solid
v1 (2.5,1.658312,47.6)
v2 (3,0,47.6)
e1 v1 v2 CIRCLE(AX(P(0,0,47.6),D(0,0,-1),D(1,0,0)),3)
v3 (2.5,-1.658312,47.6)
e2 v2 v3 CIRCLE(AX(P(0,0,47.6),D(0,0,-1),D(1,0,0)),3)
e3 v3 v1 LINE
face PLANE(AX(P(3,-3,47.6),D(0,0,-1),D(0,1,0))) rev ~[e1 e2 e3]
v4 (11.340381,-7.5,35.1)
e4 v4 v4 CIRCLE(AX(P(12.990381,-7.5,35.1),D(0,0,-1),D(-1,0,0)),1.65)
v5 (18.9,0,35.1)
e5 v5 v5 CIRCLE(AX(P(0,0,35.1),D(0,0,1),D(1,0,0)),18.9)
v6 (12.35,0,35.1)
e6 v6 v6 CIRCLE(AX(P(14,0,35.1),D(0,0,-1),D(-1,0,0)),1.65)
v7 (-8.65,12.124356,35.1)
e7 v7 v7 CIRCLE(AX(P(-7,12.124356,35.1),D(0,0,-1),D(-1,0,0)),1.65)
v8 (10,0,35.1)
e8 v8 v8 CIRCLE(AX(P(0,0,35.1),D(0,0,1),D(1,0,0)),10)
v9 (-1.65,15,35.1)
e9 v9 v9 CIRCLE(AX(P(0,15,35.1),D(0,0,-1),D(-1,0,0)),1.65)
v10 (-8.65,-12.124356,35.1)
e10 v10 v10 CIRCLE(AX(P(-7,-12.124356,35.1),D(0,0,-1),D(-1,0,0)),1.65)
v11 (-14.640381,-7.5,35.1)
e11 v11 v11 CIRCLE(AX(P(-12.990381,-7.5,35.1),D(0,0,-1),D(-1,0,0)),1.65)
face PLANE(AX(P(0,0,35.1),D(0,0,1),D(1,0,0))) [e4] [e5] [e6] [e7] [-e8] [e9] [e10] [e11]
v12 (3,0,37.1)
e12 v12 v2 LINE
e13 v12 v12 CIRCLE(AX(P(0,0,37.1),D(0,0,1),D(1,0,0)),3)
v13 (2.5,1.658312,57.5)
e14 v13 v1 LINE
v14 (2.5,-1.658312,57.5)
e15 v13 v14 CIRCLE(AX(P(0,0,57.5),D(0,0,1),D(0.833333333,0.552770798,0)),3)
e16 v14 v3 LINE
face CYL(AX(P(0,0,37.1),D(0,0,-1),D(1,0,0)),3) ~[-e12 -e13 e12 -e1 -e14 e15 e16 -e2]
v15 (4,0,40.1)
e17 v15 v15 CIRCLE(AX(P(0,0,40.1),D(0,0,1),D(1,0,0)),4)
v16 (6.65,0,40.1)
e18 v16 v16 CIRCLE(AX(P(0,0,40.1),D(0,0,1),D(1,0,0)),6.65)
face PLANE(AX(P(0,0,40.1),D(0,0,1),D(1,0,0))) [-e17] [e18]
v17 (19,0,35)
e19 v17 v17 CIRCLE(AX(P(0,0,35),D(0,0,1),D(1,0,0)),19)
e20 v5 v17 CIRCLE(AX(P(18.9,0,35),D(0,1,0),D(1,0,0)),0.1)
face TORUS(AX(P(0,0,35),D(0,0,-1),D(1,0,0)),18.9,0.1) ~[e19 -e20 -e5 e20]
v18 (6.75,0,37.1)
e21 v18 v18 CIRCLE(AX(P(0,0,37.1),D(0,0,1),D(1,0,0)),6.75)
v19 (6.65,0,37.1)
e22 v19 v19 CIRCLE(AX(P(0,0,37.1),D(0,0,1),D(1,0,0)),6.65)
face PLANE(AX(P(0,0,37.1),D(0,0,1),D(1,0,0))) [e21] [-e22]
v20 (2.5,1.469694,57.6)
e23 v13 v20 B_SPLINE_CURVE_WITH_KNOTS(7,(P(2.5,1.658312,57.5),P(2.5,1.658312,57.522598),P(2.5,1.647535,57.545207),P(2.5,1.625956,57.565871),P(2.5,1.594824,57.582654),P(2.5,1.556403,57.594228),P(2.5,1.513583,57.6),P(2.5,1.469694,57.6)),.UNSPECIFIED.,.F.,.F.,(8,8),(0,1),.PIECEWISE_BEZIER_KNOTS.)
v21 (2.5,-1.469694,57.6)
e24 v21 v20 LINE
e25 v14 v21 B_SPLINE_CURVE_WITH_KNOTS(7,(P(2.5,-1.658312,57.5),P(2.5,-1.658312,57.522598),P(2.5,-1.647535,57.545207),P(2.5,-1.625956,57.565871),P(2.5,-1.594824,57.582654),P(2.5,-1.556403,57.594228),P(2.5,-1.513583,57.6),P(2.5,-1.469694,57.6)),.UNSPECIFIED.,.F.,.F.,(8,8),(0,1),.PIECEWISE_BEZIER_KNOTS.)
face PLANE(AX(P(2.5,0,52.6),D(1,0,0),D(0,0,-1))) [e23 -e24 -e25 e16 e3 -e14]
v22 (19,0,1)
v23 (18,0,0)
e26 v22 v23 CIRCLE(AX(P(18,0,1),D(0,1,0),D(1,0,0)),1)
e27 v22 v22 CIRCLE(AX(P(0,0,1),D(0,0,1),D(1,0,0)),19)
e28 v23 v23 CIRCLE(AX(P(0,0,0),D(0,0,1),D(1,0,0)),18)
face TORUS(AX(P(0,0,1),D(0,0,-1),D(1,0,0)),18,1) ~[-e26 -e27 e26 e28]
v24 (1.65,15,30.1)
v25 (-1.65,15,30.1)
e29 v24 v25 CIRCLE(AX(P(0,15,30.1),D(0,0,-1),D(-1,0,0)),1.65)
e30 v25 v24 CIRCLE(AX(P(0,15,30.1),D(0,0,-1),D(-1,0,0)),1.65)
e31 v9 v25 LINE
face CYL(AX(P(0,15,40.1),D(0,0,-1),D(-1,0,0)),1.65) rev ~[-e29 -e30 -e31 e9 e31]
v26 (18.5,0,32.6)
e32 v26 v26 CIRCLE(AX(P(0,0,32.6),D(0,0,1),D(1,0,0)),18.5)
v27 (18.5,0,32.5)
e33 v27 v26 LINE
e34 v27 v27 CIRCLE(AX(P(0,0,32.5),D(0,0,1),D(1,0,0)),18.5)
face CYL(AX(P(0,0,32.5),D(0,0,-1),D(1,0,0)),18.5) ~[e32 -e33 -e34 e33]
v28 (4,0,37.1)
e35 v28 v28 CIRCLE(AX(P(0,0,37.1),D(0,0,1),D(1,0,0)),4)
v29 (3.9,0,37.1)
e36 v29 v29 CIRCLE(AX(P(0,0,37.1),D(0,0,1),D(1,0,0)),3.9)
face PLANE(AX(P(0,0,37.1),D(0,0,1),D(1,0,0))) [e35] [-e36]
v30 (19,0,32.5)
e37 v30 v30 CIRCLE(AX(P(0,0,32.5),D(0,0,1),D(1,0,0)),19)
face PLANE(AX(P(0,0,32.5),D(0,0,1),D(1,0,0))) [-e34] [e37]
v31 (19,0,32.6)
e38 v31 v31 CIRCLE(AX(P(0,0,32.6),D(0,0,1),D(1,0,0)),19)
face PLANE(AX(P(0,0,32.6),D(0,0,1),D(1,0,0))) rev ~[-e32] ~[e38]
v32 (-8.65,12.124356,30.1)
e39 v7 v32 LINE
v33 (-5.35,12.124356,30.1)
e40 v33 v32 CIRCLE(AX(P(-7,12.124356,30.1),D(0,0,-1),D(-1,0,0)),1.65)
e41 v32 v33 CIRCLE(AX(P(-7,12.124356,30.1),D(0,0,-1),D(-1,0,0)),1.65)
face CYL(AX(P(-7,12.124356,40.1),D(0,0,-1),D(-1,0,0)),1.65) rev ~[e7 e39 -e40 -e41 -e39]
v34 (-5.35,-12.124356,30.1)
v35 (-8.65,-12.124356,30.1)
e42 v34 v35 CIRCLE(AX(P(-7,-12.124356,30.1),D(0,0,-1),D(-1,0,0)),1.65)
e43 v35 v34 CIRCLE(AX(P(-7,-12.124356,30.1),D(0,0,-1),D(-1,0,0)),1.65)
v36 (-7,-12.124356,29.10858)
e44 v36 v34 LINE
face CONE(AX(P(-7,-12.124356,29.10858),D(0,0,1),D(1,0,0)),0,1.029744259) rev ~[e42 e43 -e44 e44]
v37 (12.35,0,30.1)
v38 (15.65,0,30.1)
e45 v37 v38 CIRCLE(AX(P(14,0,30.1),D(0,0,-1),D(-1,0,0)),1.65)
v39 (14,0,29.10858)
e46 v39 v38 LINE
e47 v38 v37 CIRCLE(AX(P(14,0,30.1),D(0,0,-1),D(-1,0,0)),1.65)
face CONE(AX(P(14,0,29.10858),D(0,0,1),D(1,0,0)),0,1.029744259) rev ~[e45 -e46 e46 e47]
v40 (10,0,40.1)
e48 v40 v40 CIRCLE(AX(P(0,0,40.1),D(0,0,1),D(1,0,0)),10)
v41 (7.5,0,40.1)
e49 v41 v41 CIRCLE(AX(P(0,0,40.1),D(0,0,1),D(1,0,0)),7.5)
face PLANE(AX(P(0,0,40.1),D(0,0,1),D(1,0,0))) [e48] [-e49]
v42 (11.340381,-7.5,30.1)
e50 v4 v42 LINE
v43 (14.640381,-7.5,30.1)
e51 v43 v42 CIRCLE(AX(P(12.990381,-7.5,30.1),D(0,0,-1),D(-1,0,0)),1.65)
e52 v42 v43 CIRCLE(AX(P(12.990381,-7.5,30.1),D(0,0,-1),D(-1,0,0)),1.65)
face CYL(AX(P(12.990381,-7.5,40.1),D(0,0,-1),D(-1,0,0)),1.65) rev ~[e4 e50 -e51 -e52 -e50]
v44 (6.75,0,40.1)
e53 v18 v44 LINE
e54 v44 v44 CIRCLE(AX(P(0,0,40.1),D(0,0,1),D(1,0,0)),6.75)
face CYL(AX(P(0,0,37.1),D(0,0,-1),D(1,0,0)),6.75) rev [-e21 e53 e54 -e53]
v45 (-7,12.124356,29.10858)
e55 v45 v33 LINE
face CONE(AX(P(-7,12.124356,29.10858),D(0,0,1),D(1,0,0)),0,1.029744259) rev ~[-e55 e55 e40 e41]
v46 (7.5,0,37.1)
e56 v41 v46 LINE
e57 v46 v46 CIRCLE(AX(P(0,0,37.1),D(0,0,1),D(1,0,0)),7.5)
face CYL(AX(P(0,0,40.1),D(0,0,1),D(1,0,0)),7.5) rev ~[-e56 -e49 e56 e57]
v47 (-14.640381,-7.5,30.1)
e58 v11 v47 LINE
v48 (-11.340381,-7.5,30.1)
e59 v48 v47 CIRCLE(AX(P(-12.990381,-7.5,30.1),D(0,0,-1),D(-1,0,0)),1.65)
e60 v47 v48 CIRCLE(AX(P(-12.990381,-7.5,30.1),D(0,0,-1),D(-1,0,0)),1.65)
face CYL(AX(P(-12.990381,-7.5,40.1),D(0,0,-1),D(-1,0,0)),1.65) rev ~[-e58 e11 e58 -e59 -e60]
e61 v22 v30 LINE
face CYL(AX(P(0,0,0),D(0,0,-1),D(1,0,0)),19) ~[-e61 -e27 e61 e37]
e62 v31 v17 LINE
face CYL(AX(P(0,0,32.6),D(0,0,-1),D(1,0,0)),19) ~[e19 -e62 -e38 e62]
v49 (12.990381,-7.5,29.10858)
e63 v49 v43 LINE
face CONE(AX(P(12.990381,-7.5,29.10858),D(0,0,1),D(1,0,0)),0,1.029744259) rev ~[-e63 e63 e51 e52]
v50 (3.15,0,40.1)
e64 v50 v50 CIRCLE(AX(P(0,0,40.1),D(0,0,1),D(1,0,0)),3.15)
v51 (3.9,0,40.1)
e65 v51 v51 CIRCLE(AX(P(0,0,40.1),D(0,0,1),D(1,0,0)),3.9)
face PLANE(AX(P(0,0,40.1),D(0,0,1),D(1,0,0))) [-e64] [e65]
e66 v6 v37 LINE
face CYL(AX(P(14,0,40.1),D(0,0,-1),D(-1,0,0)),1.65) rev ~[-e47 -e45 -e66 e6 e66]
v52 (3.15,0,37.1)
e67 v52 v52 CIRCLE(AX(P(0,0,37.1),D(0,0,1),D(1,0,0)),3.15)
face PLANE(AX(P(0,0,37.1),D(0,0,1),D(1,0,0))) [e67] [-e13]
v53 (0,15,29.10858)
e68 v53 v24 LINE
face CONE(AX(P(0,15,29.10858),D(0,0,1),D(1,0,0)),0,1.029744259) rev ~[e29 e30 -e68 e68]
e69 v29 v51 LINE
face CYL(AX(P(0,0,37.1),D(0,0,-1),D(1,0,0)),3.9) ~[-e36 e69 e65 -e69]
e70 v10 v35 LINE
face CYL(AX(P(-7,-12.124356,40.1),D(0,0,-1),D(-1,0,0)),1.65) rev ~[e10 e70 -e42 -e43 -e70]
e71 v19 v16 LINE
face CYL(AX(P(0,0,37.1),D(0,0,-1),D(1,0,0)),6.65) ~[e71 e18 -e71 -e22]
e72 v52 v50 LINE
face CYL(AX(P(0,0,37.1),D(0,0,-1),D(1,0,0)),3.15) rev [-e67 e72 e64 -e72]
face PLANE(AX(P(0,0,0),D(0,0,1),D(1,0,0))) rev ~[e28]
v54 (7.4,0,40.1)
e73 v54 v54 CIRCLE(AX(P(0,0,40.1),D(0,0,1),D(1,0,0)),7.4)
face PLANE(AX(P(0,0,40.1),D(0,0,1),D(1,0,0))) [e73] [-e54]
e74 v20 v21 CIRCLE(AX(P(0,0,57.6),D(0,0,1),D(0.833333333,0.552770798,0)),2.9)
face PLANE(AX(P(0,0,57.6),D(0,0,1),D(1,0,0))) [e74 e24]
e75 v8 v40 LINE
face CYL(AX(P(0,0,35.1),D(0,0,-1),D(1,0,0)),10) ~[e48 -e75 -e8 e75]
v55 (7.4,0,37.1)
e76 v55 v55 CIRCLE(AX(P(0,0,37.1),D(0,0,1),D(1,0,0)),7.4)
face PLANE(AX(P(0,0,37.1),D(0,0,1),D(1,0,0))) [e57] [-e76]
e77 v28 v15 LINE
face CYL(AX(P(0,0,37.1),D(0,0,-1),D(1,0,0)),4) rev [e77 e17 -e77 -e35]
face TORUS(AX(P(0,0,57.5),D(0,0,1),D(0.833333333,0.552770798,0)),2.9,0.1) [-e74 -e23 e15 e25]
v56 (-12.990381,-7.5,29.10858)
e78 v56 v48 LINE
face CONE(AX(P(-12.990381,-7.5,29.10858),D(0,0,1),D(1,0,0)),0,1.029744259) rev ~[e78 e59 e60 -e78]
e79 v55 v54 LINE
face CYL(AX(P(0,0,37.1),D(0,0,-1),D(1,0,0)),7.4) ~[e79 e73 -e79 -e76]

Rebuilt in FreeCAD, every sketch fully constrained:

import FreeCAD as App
import Part
import Sketcher

V = App.Vector


def edges_at(feature, points):
    """Names of the edges that pass closest to the given points."""
    edges = feature.Shape.Edges
    near = lambda p: min(range(len(edges)), key=lambda i: edges[i].distToShape(Part.Vertex(*p))[0])
    return sorted({f"Edge{near(p) + 1}" for p in points})

doc = App.newDocument("Part")
body = doc.addObject("PartDesign::Body", "Body")

# Sketch on XY plane
sketch1 = body.newObject("Sketcher::SketchObject", "Sketch")
sketch1.AttachmentSupport = (doc.getObject("XY_Plane"), [""])
sketch1.MapMode = "FlatFace"
sketch1.addGeometry(Part.Circle(V(0, 0, 0), V(0, 0, 1), 19), False)
sketch1.addConstraint([
    Sketcher.Constraint("Coincident", 0, 3, -1, 1),
    Sketcher.Constraint("Diameter", 0, 38.0),
])
pad1 = body.newObject("PartDesign::Pad", "Pad")
pad1.Profile = sketch1
pad1.Length = 32.5

# Sketch on XY plane
sketch2 = body.newObject("Sketcher::SketchObject", "Sketch001")
sketch2.AttachmentSupport = (doc.getObject("XY_Plane"), [""])
sketch2.MapMode = "FlatFace"
sketch2.AttachmentOffset = App.Placement(V(0, 0, 32.5), App.Rotation())
sketch2.addGeometry(Part.Circle(V(0, 0, 0), V(0, 0, 1), 18), False)
sketch2.addConstraint([
    Sketcher.Constraint("Coincident", 0, 3, -1, 1),
    Sketcher.Constraint("Diameter", 0, 37.0),
])
pad2 = body.newObject("PartDesign::Pad", "Pad001")
pad2.Profile = sketch2
pad2.Length = 0.1

# Sketch on XY plane
sketch3 = body.newObject("Sketcher::SketchObject", "Sketch002")
sketch3.AttachmentSupport = (doc.getObject("XY_Plane"), [""])
sketch3.MapMode = "FlatFace"
sketch3.AttachmentOffset = App.Placement(V(0, 0, 32.6), App.Rotation())
sketch3.addGeometry(Part.Circle(V(0, 0, 0), V(0, 0, 1), 19), False)
sketch3.addConstraint([
    Sketcher.Constraint("Coincident", 0, 3, -1, 1),
    Sketcher.Constraint("Diameter", 0, 38.0),
])
pad3 = body.newObject("PartDesign::Pad", "Pad002")
pad3.Profile = sketch3
pad3.Length = 2.5

# Sketch on XY plane
sketch4 = body.newObject("Sketcher::SketchObject", "Sketch003")
sketch4.AttachmentSupport = (doc.getObject("XY_Plane"), [""])
sketch4.MapMode = "FlatFace"
sketch4.AttachmentOffset = App.Placement(V(0, 0, 35.1), App.Rotation())
sketch4.addGeometry(Part.Circle(V(0, 0, 0), V(0, 0, 1), 10), False)
sketch4.addConstraint([
    Sketcher.Constraint("Coincident", 0, 3, -1, 1),
    Sketcher.Constraint("Diameter", 0, 20.0),
])
pad4 = body.newObject("PartDesign::Pad", "Pad003")
pad4.Profile = sketch4
pad4.Length = 5

# Sketch on XY plane
sketch5 = body.newObject("Sketcher::SketchObject", "Sketch004")
sketch5.AttachmentSupport = (doc.getObject("XY_Plane"), [""])
sketch5.MapMode = "FlatFace"
sketch5.AttachmentOffset = App.Placement(V(0, 0, 40.1), App.Rotation())
sketch5.addGeometry(Part.Circle(V(0, 0, 0), V(0, 0, 1), 8), False)
sketch5.addConstraint([
    Sketcher.Constraint("Coincident", 0, 3, -1, 1),
    Sketcher.Constraint("Diameter", 0, 15.0),
])
pocket1 = body.newObject("PartDesign::Pocket", "Pocket")
pocket1.Profile = sketch5
pocket1.Length = 3

# Sketch on XY plane
sketch6 = body.newObject("Sketcher::SketchObject", "Sketch005")
sketch6.AttachmentSupport = (doc.getObject("XY_Plane"), [""])
sketch6.MapMode = "FlatFace"
sketch6.AttachmentOffset = App.Placement(V(0, 0, 37.1), App.Rotation())
sketch6.addGeometry([
    Part.Circle(V(0, 0, 0), V(0, 0, 1), 7),
    Part.Circle(V(0, 0, 0), V(0, 0, 1), 7),
], False)
sketch6.addConstraint([
    Sketcher.Constraint("Coincident", 0, 3, -1, 1),
    Sketcher.Constraint("Coincident", 1, 3, -1, 1),
    Sketcher.Constraint("Diameter", 0, 14.8),
    Sketcher.Constraint("Diameter", 1, 13.5),
])
pad5 = body.newObject("PartDesign::Pad", "Pad004")
pad5.Profile = sketch6
pad5.Length = 3

# Sketch on XY plane
sketch7 = body.newObject("Sketcher::SketchObject", "Sketch006")
sketch7.AttachmentSupport = (doc.getObject("XY_Plane"), [""])
sketch7.MapMode = "FlatFace"
sketch7.AttachmentOffset = App.Placement(V(0, 0, 37.1), App.Rotation())
sketch7.addGeometry([
    Part.Circle(V(0, 0, 0), V(0, 0, 1), 6.7),
    Part.Circle(V(0, 0, 0), V(0, 0, 1), 4),
], False)
sketch7.addConstraint([
    Sketcher.Constraint("Coincident", 0, 3, -1, 1),
    Sketcher.Constraint("Coincident", 1, 3, -1, 1),
    Sketcher.Constraint("Diameter", 1, 8.0),
    Sketcher.Constraint("Diameter", 0, 13.3),
])
pad6 = body.newObject("PartDesign::Pad", "Pad005")
pad6.Profile = sketch7
pad6.Length = 3

# Sketch on XY plane
sketch8 = body.newObject("Sketcher::SketchObject", "Sketch007")
sketch8.AttachmentSupport = (doc.getObject("XY_Plane"), [""])
sketch8.MapMode = "FlatFace"
sketch8.AttachmentOffset = App.Placement(V(0, 0, 37.1), App.Rotation())
sketch8.addGeometry([
    Part.Circle(V(0, 0, 0), V(0, 0, 1), 3.9),
    Part.Circle(V(0, 0, 0), V(0, 0, 1), 3.1),
], False)
sketch8.addConstraint([
    Sketcher.Constraint("Coincident", 0, 3, -1, 1),
    Sketcher.Constraint("Coincident", 1, 3, -1, 1),
    Sketcher.Constraint("Diameter", 0, 7.8),
    Sketcher.Constraint("Diameter", 1, 6.3),
])
pad7 = body.newObject("PartDesign::Pad", "Pad006")
pad7.Profile = sketch8
pad7.Length = 3

# Sketch on XY plane
sketch9 = body.newObject("Sketcher::SketchObject", "Sketch008")
sketch9.AttachmentSupport = (doc.getObject("XY_Plane"), [""])
sketch9.MapMode = "FlatFace"
sketch9.AttachmentOffset = App.Placement(V(0, 0, 37.1), App.Rotation())
sketch9.addGeometry(Part.Circle(V(0, 0, 0), V(0, 0, 1), 3), False)
sketch9.addConstraint([
    Sketcher.Constraint("Coincident", 0, 3, -1, 1),
    Sketcher.Constraint("Diameter", 0, 6.0),
])
pad8 = body.newObject("PartDesign::Pad", "Pad007")
pad8.Profile = sketch9
pad8.Length = 20.5

# Sketch on YZ plane
sketch10 = body.newObject("Sketcher::SketchObject", "Sketch009")
sketch10.AttachmentSupport = (doc.getObject("YZ_Plane"), [""])
sketch10.MapMode = "FlatFace"
sketch10.AttachmentOffset = App.Placement(V(0, 0, 3), App.Rotation())
sketch10.addGeometry([
    Part.LineSegment(V(3, 58, 0), V(-3, 58, 0)),
    Part.LineSegment(V(-3, 58, 0), V(-3, 48, 0)),
    Part.LineSegment(V(-3, 48, 0), V(3, 48, 0)),
    Part.LineSegment(V(3, 48, 0), V(3, 58, 0)),
], False)
sketch10.addConstraint([
    Sketcher.Constraint("Coincident", 0, 2, 1, 1),
    Sketcher.Constraint("Coincident", 1, 2, 2, 1),
    Sketcher.Constraint("Coincident", 2, 2, 3, 1),
    Sketcher.Constraint("Coincident", 3, 2, 0, 1),
    Sketcher.Constraint("Horizontal", 0),
    Sketcher.Constraint("Vertical", 1),
    Sketcher.Constraint("Horizontal", 2),
    Sketcher.Constraint("Vertical", 3),
    Sketcher.Constraint("DistanceX", 0, 2, 0, 1, 6.0),
    Sketcher.Constraint("DistanceY", 1, 2, 1, 1, 10.0),
    Sketcher.Constraint("DistanceX", 0, 2, -1, 1, 3.0),
    Sketcher.Constraint("DistanceY", -1, 1, 0, 2, 57.6),
])
pocket2 = body.newObject("PartDesign::Pocket", "Pocket001")
pocket2.Profile = sketch10
pocket2.Length = 0.5
doc.recompute()

fillet = body.newObject("PartDesign::Fillet", "Fillet")
fillet.Base = (pocket2, edges_at(pocket2, [(-3, 0, 57.6)]))
fillet.Radius = 0.1
doc.recompute()

fillet2 = body.newObject("PartDesign::Fillet", "Fillet001")
fillet2.Base = (fillet, edges_at(fillet, [(-19, 0, 35.1)]))
fillet2.Radius = 0.1
doc.recompute()

fillet3 = body.newObject("PartDesign::Fillet", "Fillet002")
fillet3.Base = (fillet2, edges_at(fillet2, [(-19, 0, 0)]))
fillet3.Radius = 1

# Sketch on XY plane
sketch11 = body.newObject("Sketcher::SketchObject", "Sketch010")
sketch11.AttachmentSupport = (doc.getObject("XY_Plane"), [""])
sketch11.MapMode = "FlatFace"
sketch11.AttachmentOffset = App.Placement(V(0, 0, 35.1), App.Rotation())
sketch11.addGeometry([
    Part.Circle(V(-7, 12.1, 0), V(0, 0, 1), 1.6),  # 0
    Part.Circle(V(0, 15, 0), V(0, 0, 1), 1.6),  # 1
    Part.Circle(V(14, 0, 0), V(0, 0, 1), 1.6),  # 2
    Part.Circle(V(13, -7.5, 0), V(0, 0, 1), 1.6),  # 3
    Part.Circle(V(-7, -12.1, 0), V(0, 0, 1), 1.6),  # 4
    Part.Circle(V(-13, -7.5, 0), V(0, 0, 1), 1.6),  # 5
], False)
sketch11.addConstraint([
    Sketcher.Constraint("Equal", 0, 1),
    Sketcher.Constraint("Equal", 1, 2),
    Sketcher.Constraint("Equal", 2, 3),
    Sketcher.Constraint("Equal", 3, 4),
    Sketcher.Constraint("Equal", 4, 5),
    Sketcher.Constraint("Symmetric", 3, 3, 5, 3, -2),
    Sketcher.Constraint("Symmetric", 0, 3, 4, 3, -1),
    Sketcher.Constraint("PointOnObject", 1, 3, -2),
    Sketcher.Constraint("PointOnObject", 2, 3, -1),
    Sketcher.Constraint("Diameter", 0, 3.3),
    Sketcher.Constraint("DistanceX", 0, 3, -1, 1, 7.0),
    Sketcher.Constraint("DistanceY", -1, 1, 1, 3, 15.0),
    Sketcher.Constraint("DistanceX", -1, 1, 2, 3, 14.0),
    Sketcher.Constraint("DistanceY", 3, 3, -1, 1, 7.5),
    Sketcher.Constraint("DistanceX", -1, 1, 3, 3, 12.990381),
    Sketcher.Constraint("DistanceY", 4, 3, 0, 3, 24.248711),
])
doc.recompute()
hole = body.newObject("PartDesign::Hole", "Hole")
hole.Profile = sketch11
hole.ThreadType = "None"
hole.Diameter = 3.3
hole.DepthType = "Dimension"
hole.Depth = 5
hole.DrillPoint = "Angled"
hole.DrillPointAngle = 118

doc.recompute()
